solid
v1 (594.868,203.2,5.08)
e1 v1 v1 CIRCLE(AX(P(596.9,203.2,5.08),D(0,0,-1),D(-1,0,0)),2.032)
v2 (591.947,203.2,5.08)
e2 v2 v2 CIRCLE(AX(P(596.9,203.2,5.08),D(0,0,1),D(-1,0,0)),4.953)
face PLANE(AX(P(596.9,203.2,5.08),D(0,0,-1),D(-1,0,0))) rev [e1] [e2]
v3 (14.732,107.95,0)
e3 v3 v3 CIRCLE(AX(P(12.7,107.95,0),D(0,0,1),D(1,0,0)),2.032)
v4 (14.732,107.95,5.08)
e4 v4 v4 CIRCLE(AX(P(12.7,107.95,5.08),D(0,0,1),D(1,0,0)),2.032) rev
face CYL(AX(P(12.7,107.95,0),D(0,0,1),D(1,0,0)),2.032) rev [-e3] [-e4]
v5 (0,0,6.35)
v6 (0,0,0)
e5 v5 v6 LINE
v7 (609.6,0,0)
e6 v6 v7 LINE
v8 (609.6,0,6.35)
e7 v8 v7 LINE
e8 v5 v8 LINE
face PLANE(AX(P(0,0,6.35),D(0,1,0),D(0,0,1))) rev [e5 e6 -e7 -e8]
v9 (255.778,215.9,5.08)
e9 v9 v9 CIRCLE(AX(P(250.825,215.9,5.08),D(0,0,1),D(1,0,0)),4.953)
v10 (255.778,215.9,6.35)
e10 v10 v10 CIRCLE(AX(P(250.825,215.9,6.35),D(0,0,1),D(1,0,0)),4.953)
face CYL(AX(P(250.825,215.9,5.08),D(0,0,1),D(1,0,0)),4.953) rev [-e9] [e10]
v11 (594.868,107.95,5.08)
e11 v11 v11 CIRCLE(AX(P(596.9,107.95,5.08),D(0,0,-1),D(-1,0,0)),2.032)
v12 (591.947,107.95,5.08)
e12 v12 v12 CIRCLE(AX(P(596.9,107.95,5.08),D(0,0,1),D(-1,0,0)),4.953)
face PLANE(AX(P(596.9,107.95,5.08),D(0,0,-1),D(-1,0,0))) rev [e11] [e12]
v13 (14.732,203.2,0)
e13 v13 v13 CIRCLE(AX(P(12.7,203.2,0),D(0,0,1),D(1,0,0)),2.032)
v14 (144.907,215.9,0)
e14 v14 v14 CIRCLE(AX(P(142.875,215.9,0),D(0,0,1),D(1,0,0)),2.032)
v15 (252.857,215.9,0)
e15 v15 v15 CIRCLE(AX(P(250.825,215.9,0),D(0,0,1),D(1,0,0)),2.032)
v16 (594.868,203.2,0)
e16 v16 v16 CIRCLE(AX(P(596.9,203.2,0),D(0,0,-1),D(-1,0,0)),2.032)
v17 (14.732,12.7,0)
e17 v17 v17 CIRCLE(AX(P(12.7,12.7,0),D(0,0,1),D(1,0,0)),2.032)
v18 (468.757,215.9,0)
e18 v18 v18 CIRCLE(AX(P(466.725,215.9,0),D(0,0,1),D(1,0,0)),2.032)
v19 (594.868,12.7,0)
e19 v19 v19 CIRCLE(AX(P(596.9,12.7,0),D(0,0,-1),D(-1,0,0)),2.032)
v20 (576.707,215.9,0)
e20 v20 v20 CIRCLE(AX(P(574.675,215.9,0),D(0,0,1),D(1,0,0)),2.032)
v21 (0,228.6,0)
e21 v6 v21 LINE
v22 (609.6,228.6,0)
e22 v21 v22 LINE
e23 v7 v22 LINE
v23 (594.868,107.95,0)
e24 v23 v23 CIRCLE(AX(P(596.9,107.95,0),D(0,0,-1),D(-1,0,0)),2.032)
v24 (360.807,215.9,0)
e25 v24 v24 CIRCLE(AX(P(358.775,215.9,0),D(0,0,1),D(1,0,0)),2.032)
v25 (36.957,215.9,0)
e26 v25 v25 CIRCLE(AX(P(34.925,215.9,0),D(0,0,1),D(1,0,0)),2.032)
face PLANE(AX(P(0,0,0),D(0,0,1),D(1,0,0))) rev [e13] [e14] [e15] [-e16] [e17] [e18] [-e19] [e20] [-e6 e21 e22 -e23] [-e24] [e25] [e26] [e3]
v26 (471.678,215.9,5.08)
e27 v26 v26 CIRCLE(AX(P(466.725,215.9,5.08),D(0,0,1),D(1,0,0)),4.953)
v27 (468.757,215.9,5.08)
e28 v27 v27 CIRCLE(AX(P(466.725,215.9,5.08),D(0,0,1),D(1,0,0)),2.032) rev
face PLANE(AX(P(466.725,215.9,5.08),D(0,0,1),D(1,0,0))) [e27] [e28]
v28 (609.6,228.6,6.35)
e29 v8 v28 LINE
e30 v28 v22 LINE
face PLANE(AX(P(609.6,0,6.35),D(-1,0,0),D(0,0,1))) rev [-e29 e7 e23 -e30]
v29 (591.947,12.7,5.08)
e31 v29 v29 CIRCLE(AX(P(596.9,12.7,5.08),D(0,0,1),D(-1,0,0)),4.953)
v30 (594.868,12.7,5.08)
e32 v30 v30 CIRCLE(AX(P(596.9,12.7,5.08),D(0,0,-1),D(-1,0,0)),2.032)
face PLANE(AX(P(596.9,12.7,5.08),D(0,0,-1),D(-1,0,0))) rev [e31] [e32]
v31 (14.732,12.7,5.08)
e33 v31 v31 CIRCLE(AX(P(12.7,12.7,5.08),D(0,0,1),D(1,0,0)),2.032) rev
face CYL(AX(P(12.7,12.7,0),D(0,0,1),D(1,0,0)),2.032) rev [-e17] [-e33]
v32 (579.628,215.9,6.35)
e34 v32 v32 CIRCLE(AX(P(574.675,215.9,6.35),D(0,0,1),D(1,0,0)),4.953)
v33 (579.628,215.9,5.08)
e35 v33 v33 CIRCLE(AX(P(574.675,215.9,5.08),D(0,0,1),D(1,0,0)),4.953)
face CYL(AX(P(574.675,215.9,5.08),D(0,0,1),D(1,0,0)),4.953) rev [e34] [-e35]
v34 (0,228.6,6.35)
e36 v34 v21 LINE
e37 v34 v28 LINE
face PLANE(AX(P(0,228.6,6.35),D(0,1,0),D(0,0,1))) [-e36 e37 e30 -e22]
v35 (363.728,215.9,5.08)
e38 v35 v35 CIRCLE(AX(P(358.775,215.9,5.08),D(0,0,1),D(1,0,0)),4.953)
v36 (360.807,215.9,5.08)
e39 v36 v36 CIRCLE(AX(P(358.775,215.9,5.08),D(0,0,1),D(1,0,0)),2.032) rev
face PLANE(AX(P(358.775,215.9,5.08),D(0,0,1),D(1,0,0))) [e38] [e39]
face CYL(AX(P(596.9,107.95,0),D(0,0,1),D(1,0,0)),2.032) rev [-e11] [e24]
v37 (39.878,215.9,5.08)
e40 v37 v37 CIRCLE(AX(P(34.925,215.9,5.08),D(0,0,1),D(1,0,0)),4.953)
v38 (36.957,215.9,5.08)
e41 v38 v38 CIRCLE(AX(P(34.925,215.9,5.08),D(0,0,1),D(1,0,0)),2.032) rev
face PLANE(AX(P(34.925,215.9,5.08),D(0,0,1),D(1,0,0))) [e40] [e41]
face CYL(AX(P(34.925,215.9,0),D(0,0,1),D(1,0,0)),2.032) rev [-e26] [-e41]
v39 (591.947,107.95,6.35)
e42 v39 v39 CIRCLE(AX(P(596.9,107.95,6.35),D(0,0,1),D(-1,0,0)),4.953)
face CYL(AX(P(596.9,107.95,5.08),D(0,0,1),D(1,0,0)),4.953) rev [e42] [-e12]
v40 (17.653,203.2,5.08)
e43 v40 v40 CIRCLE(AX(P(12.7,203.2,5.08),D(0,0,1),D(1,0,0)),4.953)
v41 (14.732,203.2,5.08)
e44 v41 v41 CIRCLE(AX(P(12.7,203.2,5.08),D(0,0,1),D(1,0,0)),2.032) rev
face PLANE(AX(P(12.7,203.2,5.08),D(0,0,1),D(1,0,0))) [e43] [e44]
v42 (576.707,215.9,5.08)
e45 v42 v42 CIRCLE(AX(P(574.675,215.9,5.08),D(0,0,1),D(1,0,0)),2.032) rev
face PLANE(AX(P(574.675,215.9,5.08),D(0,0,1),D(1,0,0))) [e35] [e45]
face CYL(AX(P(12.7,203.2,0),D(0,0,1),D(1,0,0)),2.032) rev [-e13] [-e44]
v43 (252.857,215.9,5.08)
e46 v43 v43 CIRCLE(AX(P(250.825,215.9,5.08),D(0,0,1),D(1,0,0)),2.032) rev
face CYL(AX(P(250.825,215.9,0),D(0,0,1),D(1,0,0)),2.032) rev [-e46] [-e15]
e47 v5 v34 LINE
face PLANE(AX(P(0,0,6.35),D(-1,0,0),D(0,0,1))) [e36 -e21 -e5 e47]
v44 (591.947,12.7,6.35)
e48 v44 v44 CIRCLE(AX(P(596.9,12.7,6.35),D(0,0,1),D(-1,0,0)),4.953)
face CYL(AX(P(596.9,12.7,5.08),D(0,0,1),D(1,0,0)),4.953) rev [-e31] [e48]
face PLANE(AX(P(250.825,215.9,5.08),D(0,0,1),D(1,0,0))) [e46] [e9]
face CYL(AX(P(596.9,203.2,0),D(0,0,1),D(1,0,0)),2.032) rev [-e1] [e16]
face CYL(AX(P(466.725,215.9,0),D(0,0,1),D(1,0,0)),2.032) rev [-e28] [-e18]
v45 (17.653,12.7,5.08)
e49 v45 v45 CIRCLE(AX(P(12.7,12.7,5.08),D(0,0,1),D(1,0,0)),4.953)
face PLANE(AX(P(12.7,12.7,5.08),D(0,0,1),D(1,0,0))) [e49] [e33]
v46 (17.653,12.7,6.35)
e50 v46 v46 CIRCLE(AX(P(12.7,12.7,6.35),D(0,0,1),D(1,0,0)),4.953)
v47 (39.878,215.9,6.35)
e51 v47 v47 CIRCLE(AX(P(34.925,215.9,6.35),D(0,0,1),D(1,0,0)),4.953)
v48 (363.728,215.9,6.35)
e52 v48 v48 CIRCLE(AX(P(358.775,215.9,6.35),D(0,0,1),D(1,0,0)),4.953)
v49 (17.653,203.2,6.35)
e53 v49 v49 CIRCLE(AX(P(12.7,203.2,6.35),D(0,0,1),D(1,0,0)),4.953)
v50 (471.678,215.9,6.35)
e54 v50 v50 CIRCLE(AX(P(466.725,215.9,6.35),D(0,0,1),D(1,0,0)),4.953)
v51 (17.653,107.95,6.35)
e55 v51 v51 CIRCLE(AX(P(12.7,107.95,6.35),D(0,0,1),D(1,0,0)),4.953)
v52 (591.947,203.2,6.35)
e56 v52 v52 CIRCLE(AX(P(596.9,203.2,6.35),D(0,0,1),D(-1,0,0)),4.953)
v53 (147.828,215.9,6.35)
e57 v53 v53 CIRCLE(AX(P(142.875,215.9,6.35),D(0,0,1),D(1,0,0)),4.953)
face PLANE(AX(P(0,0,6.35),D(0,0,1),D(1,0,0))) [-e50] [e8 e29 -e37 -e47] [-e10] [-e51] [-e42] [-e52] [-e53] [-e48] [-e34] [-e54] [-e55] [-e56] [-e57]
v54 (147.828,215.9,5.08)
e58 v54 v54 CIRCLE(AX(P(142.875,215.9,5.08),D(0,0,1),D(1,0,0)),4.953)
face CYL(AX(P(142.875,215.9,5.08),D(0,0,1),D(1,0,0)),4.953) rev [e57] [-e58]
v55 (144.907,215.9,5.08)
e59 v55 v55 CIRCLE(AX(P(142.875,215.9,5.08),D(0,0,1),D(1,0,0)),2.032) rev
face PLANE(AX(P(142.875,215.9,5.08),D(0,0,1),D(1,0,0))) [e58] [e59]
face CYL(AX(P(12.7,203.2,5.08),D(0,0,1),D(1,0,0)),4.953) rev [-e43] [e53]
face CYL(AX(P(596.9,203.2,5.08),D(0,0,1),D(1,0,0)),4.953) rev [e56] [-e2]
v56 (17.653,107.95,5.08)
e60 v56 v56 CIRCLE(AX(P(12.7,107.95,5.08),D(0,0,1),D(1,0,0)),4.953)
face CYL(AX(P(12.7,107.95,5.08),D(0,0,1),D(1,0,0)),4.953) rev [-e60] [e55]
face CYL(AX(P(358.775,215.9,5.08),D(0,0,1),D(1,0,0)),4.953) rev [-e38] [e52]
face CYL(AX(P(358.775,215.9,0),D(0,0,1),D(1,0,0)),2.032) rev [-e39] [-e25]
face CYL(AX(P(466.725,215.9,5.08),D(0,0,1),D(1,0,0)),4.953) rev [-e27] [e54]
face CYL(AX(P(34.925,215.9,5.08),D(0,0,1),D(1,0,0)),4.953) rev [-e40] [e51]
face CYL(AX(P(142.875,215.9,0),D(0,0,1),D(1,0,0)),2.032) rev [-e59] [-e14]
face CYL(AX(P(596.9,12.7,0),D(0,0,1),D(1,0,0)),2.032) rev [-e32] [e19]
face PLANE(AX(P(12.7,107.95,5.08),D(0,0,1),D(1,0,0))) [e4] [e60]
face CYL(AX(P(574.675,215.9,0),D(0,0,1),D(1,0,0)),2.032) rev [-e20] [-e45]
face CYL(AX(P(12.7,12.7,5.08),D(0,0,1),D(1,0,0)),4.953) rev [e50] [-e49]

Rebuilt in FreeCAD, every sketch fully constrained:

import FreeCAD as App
import Part
import Sketcher
from FreeCAD import Vector
Q = App.Units.Quantity


def add_polygon(sketch, points):
    """Adds a closed chain of lines whose ends are joined by coincident constraints."""
    first, n = sketch.GeometryCount, len(points)
    for a, b in zip(points, points[1:] + points[:1]):
        sketch.addGeometry(Part.LineSegment(App.Vector(*a, 0), App.Vector(*b, 0)), False)
    for i in range(n):
        sketch.addConstraint(Sketcher.Constraint("Coincident", first + i, 2, first + (i + 1) % n, 1))

doc = App.newDocument("Part")
body = doc.addObject("PartDesign::Body", "Body")

sketch1 = body.newObject("Sketcher::SketchObject", "Sketch")
sketch1.AttachmentSupport = (doc.getObject("XY_Plane"), [""])
sketch1.MapMode = "FlatFace"
add_polygon(sketch1, [(0, 228.6), (0, 0), (609.6, 0), (609.6, 228.6)])
sketch1.addConstraint([
    Sketcher.Constraint("Vertical", 0),
    Sketcher.Constraint("Horizontal", 1),
    Sketcher.Constraint("Vertical", 2),
    Sketcher.Constraint("Horizontal", 3),
    Sketcher.Constraint("Coincident", 0, 2, -1, 1),
    Sketcher.Constraint("DistanceX", 1, 1, 1, 2, Q("24 in")),
    Sketcher.Constraint("DistanceY", 0, 2, 0, 1, Q("9 in")),
])
pad1 = body.newObject("PartDesign::Pad", "Pad")
pad1.Profile = sketch1
pad1.Length = Q("0.25 in")

sketch2 = body.newObject("Sketcher::SketchObject", "Sketch001")
sketch2.AttachmentSupport = (doc.getObject("XY_Plane"), [""])
sketch2.MapMode = "FlatFace"
sketch2.AttachmentOffset = App.Placement(Vector(0, 0, 0.25 * 25.4), App.Rotation())
sketch2.addGeometry([
    Part.Circle(Vector(12.7, 203.2, 0), Vector(0, 0, 1), 2.032),
    Part.Circle(Vector(12.7, 107.95, 0), Vector(0, 0, 1), 2.032),
    Part.Circle(Vector(12.7, 12.7, 0), Vector(0, 0, 1), 2.032),
    Part.Circle(Vector(596.9, 12.7, 0), Vector(0, 0, 1), 2.032),
    Part.Circle(Vector(596.9, 107.95, 0), Vector(0, 0, 1), 2.032),
    Part.Circle(Vector(596.9, 203.2, 0), Vector(0, 0, 1), 2.032),
], False)
sketch2.addConstraint([
    Sketcher.Constraint("Equal", 0, 1),
    Sketcher.Constraint("Equal", 1, 2),
    Sketcher.Constraint("Equal", 2, 3),
    Sketcher.Constraint("Equal", 3, 4),
    Sketcher.Constraint("Equal", 4, 5),
    Sketcher.Constraint("Horizontal", 2, 3, 3, 3),
    Sketcher.Constraint("Horizontal", 1, 3, 4, 3),
    Sketcher.Constraint("Horizontal", 0, 3, 5, 3),
    Sketcher.Constraint("Vertical", 0, 3, 1, 3),
    Sketcher.Constraint("Vertical", 1, 3, 2, 3),
    Sketcher.Constraint("Vertical", 3, 3, 4, 3),
    Sketcher.Constraint("Vertical", 4, 3, 5, 3),
    Sketcher.Constraint("Diameter", 0, Q("0.16 in")),
    Sketcher.Constraint("DistanceY", -1, 1, 0, 3, Q("8 in")),
    Sketcher.Constraint("DistanceX", 2, 3, 3, 3, Q("23 in")),
    Sketcher.Constraint("DistanceX", -1, 1, 0, 3, Q("0.5 in")),
    Sketcher.Constraint("DistanceY", -1, 1, 2, 3, Q("0.5 in")),
    Sketcher.Constraint("DistanceY", -1, 1, 1, 3, Q("4.25 in")),
])
pocket1 = body.newObject("PartDesign::Pocket", "Pocket")
pocket1.Profile = sketch2
pocket1.Type = "ThroughAll"

sketch3 = body.newObject("Sketcher::SketchObject", "Sketch002")
sketch3.AttachmentSupport = (doc.getObject("XY_Plane"), [""])
sketch3.MapMode = "FlatFace"
sketch3.AttachmentOffset = App.Placement(Vector(0, 0, 0.25 * 25.4), App.Rotation())
sketch3.addGeometry([
    Part.Circle(Vector(12.7, 203.2, 0), Vector(0, 0, 1), 4.953),
    Part.Circle(Vector(12.7, 107.95, 0), Vector(0, 0, 1), 4.953),
    Part.Circle(Vector(12.7, 12.7, 0), Vector(0, 0, 1), 4.953),
    Part.Circle(Vector(596.9, 12.7, 0), Vector(0, 0, 1), 4.953),
    Part.Circle(Vector(596.9, 107.95, 0), Vector(0, 0, 1), 4.953),
    Part.Circle(Vector(596.9, 203.2, 0), Vector(0, 0, 1), 4.953),
], False)
sketch3.addConstraint([
    Sketcher.Constraint("Equal", 0, 1),
    Sketcher.Constraint("Equal", 1, 2),
    Sketcher.Constraint("Equal", 2, 3),
    Sketcher.Constraint("Equal", 3, 4),
    Sketcher.Constraint("Equal", 4, 5),
    Sketcher.Constraint("Horizontal", 2, 3, 3, 3),
    Sketcher.Constraint("Horizontal", 1, 3, 4, 3),
    Sketcher.Constraint("Horizontal", 0, 3, 5, 3),
    Sketcher.Constraint("Vertical", 0, 3, 1, 3),
    Sketcher.Constraint("Vertical", 1, 3, 2, 3),
    Sketcher.Constraint("Vertical", 3, 3, 4, 3),
    Sketcher.Constraint("Vertical", 4, 3, 5, 3),
    Sketcher.Constraint("Diameter", 0, Q("0.39 in")),
    Sketcher.Constraint("DistanceY", -1, 1, 0, 3, Q("8 in")),
    Sketcher.Constraint("DistanceX", 2, 3, 3, 3, Q("23 in")),
    Sketcher.Constraint("DistanceX", -1, 1, 0, 3, Q("0.5 in")),
    Sketcher.Constraint("DistanceY", -1, 1, 2, 3, Q("0.5 in")),
    Sketcher.Constraint("DistanceY", -1, 1, 1, 3, Q("4.25 in")),
])
pocket2 = body.newObject("PartDesign::Pocket", "Pocket001")
pocket2.Profile = sketch3
pocket2.Length = Q("0.05 in")

sketch4 = body.newObject("Sketcher::SketchObject", "Sketch003")
sketch4.AttachmentSupport = (doc.getObject("XY_Plane"), [""])
sketch4.MapMode = "FlatFace"
sketch4.AttachmentOffset = App.Placement(Vector(0, 0, 0.25 * 25.4), App.Rotation())
sketch4.addGeometry([
    Part.Circle(Vector(34.925, 215.9, 0), Vector(0, 0, 1), 2.032),
    Part.Circle(Vector(142.875, 215.9, 0), Vector(0, 0, 1), 2.032),
    Part.Circle(Vector(250.825, 215.9, 0), Vector(0, 0, 1), 2.032),
    Part.Circle(Vector(358.775, 215.9, 0), Vector(0, 0, 1), 2.032),
    Part.Circle(Vector(466.725, 215.9, 0), Vector(0, 0, 1), 2.032),
    Part.Circle(Vector(574.675, 215.9, 0), Vector(0, 0, 1), 2.032),
], False)
sketch4.addConstraint([
    Sketcher.Constraint("Equal", 0, 1),
    Sketcher.Constraint("Equal", 1, 2),
    Sketcher.Constraint("Equal", 2, 3),
    Sketcher.Constraint("Equal", 3, 4),
    Sketcher.Constraint("Equal", 4, 5),
    Sketcher.Constraint("Horizontal", 0, 3, 1, 3),
    Sketcher.Constraint("Horizontal", 1, 3, 2, 3),
    Sketcher.Constraint("Horizontal", 2, 3, 3, 3),
    Sketcher.Constraint("Horizontal", 3, 3, 4, 3),
    Sketcher.Constraint("Horizontal", 4, 3, 5, 3),
    Sketcher.Constraint("Diameter", 0, Q("0.16 in")),
    Sketcher.Constraint("DistanceX", 0, 3, 4, 3, Q("17 in")),
    Sketcher.Constraint("DistanceX", 1, 3, 5, 3, Q("17 in")),
    Sketcher.Constraint("DistanceY", -1, 1, 0, 3, Q("8.5 in")),
    Sketcher.Constraint("DistanceX", 0, 3, 2, 3, Q("8.5 in")),
    Sketcher.Constraint("DistanceX", 1, 3, 3, 3, Q("8.5 in")),
    Sketcher.Constraint("DistanceX", 0, 3, 1, 3, Q("4.25 in")),
    Sketcher.Constraint("DistanceX", -1, 1, 0, 3, Q("1.375 in")),
])
pocket3 = body.newObject("PartDesign::Pocket", "Pocket002")
pocket3.Profile = sketch4
pocket3.Type = "ThroughAll"

sketch5 = body.newObject("Sketcher::SketchObject", "Sketch004")
sketch5.AttachmentSupport = (doc.getObject("XY_Plane"), [""])
sketch5.MapMode = "FlatFace"
sketch5.AttachmentOffset = App.Placement(Vector(0, 0, 0.25 * 25.4), App.Rotation())
sketch5.addGeometry([
    Part.Circle(Vector(34.925, 215.9, 0), Vector(0, 0, 1), 4.953),
    Part.Circle(Vector(142.875, 215.9, 0), Vector(0, 0, 1), 4.953),
    Part.Circle(Vector(250.825, 215.9, 0), Vector(0, 0, 1), 4.953),
    Part.Circle(Vector(358.775, 215.9, 0), Vector(0, 0, 1), 4.953),
    Part.Circle(Vector(466.725, 215.9, 0), Vector(0, 0, 1), 4.953),
    Part.Circle(Vector(574.675, 215.9, 0), Vector(0, 0, 1), 4.953),
], False)
sketch5.addConstraint([
    Sketcher.Constraint("Equal", 0, 1),
    Sketcher.Constraint("Equal", 1, 2),
    Sketcher.Constraint("Equal", 2, 3),
    Sketcher.Constraint("Equal", 3, 4),
    Sketcher.Constraint("Equal", 4, 5),
    Sketcher.Constraint("Horizontal", 0, 3, 1, 3),
    Sketcher.Constraint("Horizontal", 1, 3, 2, 3),
    Sketcher.Constraint("Horizontal", 2, 3, 3, 3),
    Sketcher.Constraint("Horizontal", 3, 3, 4, 3),
    Sketcher.Constraint("Horizontal", 4, 3, 5, 3),
    Sketcher.Constraint("Diameter", 0, Q("0.39 in")),
    Sketcher.Constraint("DistanceX", 0, 3, 4, 3, Q("17 in")),
    Sketcher.Constraint("DistanceX", 1, 3, 5, 3, Q("17 in")),
    Sketcher.Constraint("DistanceY", -1, 1, 0, 3, Q("8.5 in")),
    Sketcher.Constraint("DistanceX", 0, 3, 2, 3, Q("8.5 in")),
    Sketcher.Constraint("DistanceX", 1, 3, 3, 3, Q("8.5 in")),
    Sketcher.Constraint("DistanceX", 0, 3, 1, 3, Q("4.25 in")),
    Sketcher.Constraint("DistanceX", -1, 1, 0, 3, Q("1.375 in")),
])
pocket4 = body.newObject("PartDesign::Pocket", "Pocket003")
pocket4.Profile = sketch5
pocket4.Length = Q("0.05 in")

doc.recompute()
